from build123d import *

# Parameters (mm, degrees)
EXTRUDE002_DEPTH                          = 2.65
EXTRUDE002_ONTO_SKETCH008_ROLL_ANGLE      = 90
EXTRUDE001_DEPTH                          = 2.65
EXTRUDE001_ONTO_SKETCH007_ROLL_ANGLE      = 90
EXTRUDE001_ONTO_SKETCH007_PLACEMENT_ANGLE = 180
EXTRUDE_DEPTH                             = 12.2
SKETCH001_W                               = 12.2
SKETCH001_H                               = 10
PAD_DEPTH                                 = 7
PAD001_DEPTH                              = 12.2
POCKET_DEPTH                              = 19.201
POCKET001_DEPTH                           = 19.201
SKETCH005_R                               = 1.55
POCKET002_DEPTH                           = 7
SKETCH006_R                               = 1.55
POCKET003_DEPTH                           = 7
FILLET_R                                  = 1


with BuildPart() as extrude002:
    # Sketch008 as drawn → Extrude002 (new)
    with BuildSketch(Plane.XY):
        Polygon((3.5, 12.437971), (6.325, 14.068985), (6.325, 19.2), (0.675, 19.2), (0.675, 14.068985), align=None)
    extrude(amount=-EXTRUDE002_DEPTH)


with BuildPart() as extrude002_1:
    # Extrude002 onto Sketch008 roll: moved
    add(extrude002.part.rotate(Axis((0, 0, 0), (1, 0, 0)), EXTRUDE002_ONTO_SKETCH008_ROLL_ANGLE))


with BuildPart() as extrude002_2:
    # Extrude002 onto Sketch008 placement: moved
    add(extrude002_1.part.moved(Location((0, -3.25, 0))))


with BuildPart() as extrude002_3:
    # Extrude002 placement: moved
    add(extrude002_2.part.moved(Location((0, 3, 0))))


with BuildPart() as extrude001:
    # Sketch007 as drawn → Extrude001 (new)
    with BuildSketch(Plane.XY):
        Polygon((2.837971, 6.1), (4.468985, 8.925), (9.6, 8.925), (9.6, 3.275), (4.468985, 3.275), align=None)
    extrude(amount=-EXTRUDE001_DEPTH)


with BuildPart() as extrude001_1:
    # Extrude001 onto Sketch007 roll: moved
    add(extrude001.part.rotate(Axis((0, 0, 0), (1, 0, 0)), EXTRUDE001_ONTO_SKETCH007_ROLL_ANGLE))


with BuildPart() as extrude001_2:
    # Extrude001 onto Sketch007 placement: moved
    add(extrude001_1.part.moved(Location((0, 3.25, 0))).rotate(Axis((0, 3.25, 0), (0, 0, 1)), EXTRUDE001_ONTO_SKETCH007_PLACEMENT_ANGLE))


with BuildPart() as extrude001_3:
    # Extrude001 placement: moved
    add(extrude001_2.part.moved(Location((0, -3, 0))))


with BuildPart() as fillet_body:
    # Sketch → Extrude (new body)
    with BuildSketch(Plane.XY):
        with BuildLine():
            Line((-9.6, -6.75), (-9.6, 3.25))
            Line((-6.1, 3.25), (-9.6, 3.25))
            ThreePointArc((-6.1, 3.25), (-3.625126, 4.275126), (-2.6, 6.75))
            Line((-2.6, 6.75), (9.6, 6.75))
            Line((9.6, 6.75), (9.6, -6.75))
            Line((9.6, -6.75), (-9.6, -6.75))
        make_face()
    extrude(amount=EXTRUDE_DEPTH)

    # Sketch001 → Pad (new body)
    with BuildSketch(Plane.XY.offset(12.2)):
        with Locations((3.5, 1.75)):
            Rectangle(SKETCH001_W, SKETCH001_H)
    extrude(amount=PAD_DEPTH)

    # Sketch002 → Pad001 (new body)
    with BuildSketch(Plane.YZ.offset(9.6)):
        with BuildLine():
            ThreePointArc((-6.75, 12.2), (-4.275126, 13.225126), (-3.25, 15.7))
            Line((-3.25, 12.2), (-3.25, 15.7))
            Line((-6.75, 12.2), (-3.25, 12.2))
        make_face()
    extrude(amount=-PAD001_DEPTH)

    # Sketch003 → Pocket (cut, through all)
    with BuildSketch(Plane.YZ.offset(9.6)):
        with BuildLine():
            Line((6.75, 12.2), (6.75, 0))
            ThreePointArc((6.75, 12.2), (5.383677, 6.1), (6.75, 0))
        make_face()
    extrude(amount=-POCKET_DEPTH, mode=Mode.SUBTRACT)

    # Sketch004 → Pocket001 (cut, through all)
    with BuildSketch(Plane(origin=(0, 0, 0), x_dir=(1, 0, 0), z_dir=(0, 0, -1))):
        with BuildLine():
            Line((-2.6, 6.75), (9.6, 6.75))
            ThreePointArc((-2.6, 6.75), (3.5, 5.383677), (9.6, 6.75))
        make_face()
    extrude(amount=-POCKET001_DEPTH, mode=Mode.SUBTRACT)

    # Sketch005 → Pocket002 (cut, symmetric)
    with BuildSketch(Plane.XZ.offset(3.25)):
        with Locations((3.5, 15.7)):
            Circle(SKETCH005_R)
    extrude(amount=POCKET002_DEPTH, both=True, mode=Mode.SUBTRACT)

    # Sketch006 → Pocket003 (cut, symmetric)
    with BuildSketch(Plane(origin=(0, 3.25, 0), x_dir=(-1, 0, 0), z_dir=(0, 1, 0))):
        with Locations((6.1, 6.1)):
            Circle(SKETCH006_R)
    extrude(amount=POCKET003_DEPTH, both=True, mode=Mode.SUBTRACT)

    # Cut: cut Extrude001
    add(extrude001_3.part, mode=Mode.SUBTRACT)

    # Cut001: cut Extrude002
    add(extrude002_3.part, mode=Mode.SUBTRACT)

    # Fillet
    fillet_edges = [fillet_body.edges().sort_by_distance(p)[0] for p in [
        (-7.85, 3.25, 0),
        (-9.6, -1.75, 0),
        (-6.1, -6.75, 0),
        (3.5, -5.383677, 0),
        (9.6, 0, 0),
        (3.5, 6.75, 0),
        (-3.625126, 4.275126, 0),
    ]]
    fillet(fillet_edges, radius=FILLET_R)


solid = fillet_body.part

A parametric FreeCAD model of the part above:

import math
import FreeCAD as App
import Part
import Sketcher
Q = App.Units.Quantity


def edges_at(feature, points):
    """Names of the edges that pass closest to the given points."""
    edges = feature.Shape.Edges
    near = lambda p: min(range(len(edges)), key=lambda i: edges[i].distToShape(Part.Vertex(*p))[0])
    return sorted({f"Edge{near(p) + 1}" for p in points})

doc = App.newDocument("Part")
body = doc.addObject("PartDesign::Body", "Body")

# Sketch on XY plane
sketch1 = doc.addObject("Sketcher::SketchObject", "Sketch")
body.addObject(sketch1)
sketch1.AttachmentSupport = (doc.XY_Plane, [""])
sketch1.MapMode = "FlatFace"
sketch1.addGeometry(Part.LineSegment(App.Vector(3.5, 12.4, 0), App.Vector(6.3, 14.1, 0)), False)
sketch1.addGeometry(Part.LineSegment(App.Vector(6.3, 14.1, 0), App.Vector(6.3, 19.2, 0)), False)
sketch1.addGeometry(Part.LineSegment(App.Vector(6.3, 19.2, 0), App.Vector(0.7, 19.2, 0)), False)
sketch1.addGeometry(Part.LineSegment(App.Vector(0.7, 19.2, 0), App.Vector(0.7, 14.1, 0)), False)
sketch1.addGeometry(Part.LineSegment(App.Vector(0.7, 14.1, 0), App.Vector(3.5, 12.4, 0)), False)
sketch1.addConstraint(Sketcher.Constraint("Coincident", 0, 2, 1, 1))
sketch1.addConstraint(Sketcher.Constraint("Coincident", 1, 2, 2, 1))
sketch1.addConstraint(Sketcher.Constraint("Coincident", 2, 2, 3, 1))
sketch1.addConstraint(Sketcher.Constraint("Coincident", 3, 2, 4, 1))
sketch1.addConstraint(Sketcher.Constraint("Coincident", 4, 2, 0, 1))
sketch1.addConstraint(Sketcher.Constraint("Vertical", 1))
sketch1.addConstraint(Sketcher.Constraint("Horizontal", 2))
sketch1.addConstraint(Sketcher.Constraint("Vertical", 3))
sketch1.addConstraint(Sketcher.Constraint("Horizontal", 0, 2, 3, 2))
sketch1.addConstraint(Sketcher.Constraint("Equal", 0, 4))
sketch1.addConstraint(Sketcher.Constraint("Angle", 0, Q("29.999992 deg")))
sketch1.addConstraint(Sketcher.Constraint("DistanceX", 2, 2, 2, 1, Q("5.65 mm")))
sketch1.addConstraint(Sketcher.Constraint("DistanceY", -1, 1, 1, 2, Q("19.2 mm")))
sketch1.addConstraint(Sketcher.Constraint("DistanceX", -1, 1, 4, 2, Q("3.5 mm")))
sketch1.addConstraint(Sketcher.Constraint("DistanceY", 1, 1, 1, 2, Q("5.131015 mm")))
pad1 = doc.addObject("PartDesign::Pad", "Pad")
body.addObject(pad1)
pad1.Profile = sketch1
pad1.Length = 2.65
pad1.Reversed = True
body2 = doc.addObject("PartDesign::Body", "Body001")
doc.recompute()

body.Placement = App.Placement(App.Vector(0, 0, 0), App.Rotation(App.Vector(1, 0, 0), 90))
boolean = doc.addObject("PartDesign::Boolean", "Boolean")
body2.addObject(boolean)
boolean.Type = "Fuse"
boolean.addObjects([body])
body3 = doc.addObject("PartDesign::Body", "Body002")
doc.recompute()

body2.Placement = App.Placement(App.Vector(0, -3.25, 0), App.Rotation(App.Vector(0, 0, 1), 0))
boolean2 = doc.addObject("PartDesign::Boolean", "Boolean001")
body3.addObject(boolean2)
boolean2.Type = "Fuse"
boolean2.addObjects([body2])
body4 = doc.addObject("PartDesign::Body", "Body003")
doc.recompute()

body3.Placement = App.Placement(App.Vector(0, 3, 0), App.Rotation(App.Vector(0, 0, 1), 0))
boolean3 = doc.addObject("PartDesign::Boolean", "Boolean002")
body4.addObject(boolean3)
boolean3.Type = "Fuse"
boolean3.addObjects([body3])
body5 = doc.addObject("PartDesign::Body", "Body004")

# Sketch on XY plane
sketch2 = doc.addObject("Sketcher::SketchObject", "Sketch001")
body5.addObject(sketch2)
sketch2.AttachmentSupport = (doc.getObject("XY_Plane004"), [""])
sketch2.MapMode = "FlatFace"
sketch2.addGeometry(Part.LineSegment(App.Vector(4.5, 8.9, 0), App.Vector(2.8, 6.1, 0)), False)
sketch2.addGeometry(Part.LineSegment(App.Vector(2.8, 6.1, 0), App.Vector(4.5, 3.3, 0)), False)
sketch2.addGeometry(Part.LineSegment(App.Vector(4.5, 3.3, 0), App.Vector(9.6, 3.3, 0)), False)
sketch2.addGeometry(Part.LineSegment(App.Vector(9.6, 3.3, 0), App.Vector(9.6, 8.9, 0)), False)
sketch2.addGeometry(Part.LineSegment(App.Vector(9.6, 8.9, 0), App.Vector(4.5, 8.9, 0)), False)
sketch2.addConstraint(Sketcher.Constraint("Coincident", 0, 2, 1, 1))
sketch2.addConstraint(Sketcher.Constraint("Coincident", 1, 2, 2, 1))
sketch2.addConstraint(Sketcher.Constraint("Coincident", 2, 2, 3, 1))
sketch2.addConstraint(Sketcher.Constraint("Coincident", 3, 2, 4, 1))
sketch2.addConstraint(Sketcher.Constraint("Coincident", 4, 2, 0, 1))
sketch2.addConstraint(Sketcher.Constraint("Horizontal", 2))
sketch2.addConstraint(Sketcher.Constraint("Vertical", 3))
sketch2.addConstraint(Sketcher.Constraint("Horizontal", 4))
sketch2.addConstraint(Sketcher.Constraint("Vertical", 1, 2, 4, 2))
sketch2.addConstraint(Sketcher.Constraint("Equal", 0, 1))
sketch2.addConstraint(Sketcher.Constraint("Angle", 0, Q("-119.999992 deg")))
sketch2.addConstraint(Sketcher.Constraint("DistanceY", 3, 1, 3, 2, Q("5.65 mm")))
sketch2.addConstraint(Sketcher.Constraint("DistanceY", -1, 1, 0, 2, Q("6.1 mm")))
sketch2.addConstraint(Sketcher.Constraint("DistanceX", -1, 1, 2, 2, Q("9.6 mm")))
sketch2.addConstraint(Sketcher.Constraint("DistanceX", 2, 1, 2, 2, Q("5.131015 mm")))
pad2 = doc.addObject("PartDesign::Pad", "Pad001")
body5.addObject(pad2)
pad2.Profile = sketch2
pad2.Length = 2.65
pad2.Reversed = True
body6 = doc.addObject("PartDesign::Body", "Body005")
doc.recompute()

body5.Placement = App.Placement(App.Vector(0, 0, 0), App.Rotation(App.Vector(1, 0, 0), 90))
boolean4 = doc.addObject("PartDesign::Boolean", "Boolean003")
body6.addObject(boolean4)
boolean4.Type = "Fuse"
boolean4.addObjects([body5])
body7 = doc.addObject("PartDesign::Body", "Body006")
doc.recompute()

body6.Placement = App.Placement(App.Vector(0, 3.25, 0), App.Rotation(App.Vector(0, 0, 1), 180))
boolean5 = doc.addObject("PartDesign::Boolean", "Boolean004")
body7.addObject(boolean5)
boolean5.Type = "Fuse"
boolean5.addObjects([body6])
body8 = doc.addObject("PartDesign::Body", "Body007")
doc.recompute()

body7.Placement = App.Placement(App.Vector(0, -3, 0), App.Rotation(App.Vector(0, 0, 1), 0))
boolean6 = doc.addObject("PartDesign::Boolean", "Boolean005")
body8.addObject(boolean6)
boolean6.Type = "Fuse"
boolean6.addObjects([body7])
body9 = doc.addObject("PartDesign::Body", "Body008")

# Sketch on XY plane
sketch3 = doc.addObject("Sketcher::SketchObject", "Sketch002")
body9.addObject(sketch3)
sketch3.AttachmentSupport = (doc.getObject("XY_Plane008"), [""])
sketch3.MapMode = "FlatFace"
sketch3.addGeometry(Part.LineSegment(App.Vector(-9.6, 3.2, 0), App.Vector(-9.6, -6.8, 0)), False)
sketch3.addGeometry(Part.LineSegment(App.Vector(-9.6, -6.8, 0), App.Vector(9.6, -6.8, 0)), False)
sketch3.addGeometry(Part.LineSegment(App.Vector(9.6, -6.8, 0), App.Vector(9.6, 6.8, 0)), False)
sketch3.addGeometry(Part.LineSegment(App.Vector(9.6, 6.8, 0), App.Vector(-2.6, 6.8, 0)), False)
sketch3.addGeometry(Part.ArcOfCircle(Part.Circle(App.Vector(-6.1, 6.7, 0), App.Vector(0, 0, 1), 3.5), math.radians(-90), math.radians(0)), False)
sketch3.addGeometry(Part.LineSegment(App.Vector(-6.1, 3.2, 0), App.Vector(-9.6, 3.2, 0)), False)
sketch3.addConstraint(Sketcher.Constraint("Coincident", 0, 2, 1, 1))
sketch3.addConstraint(Sketcher.Constraint("Coincident", 1, 2, 2, 1))
sketch3.addConstraint(Sketcher.Constraint("Coincident", 2, 2, 3, 1))
sketch3.addConstraint(Sketcher.Constraint("Coincident", 3, 2, 4, 2))
sketch3.addConstraint(Sketcher.Constraint("Tangent", 4, 1, 5, 1))
sketch3.addConstraint(Sketcher.Constraint("Coincident", 5, 2, 0, 1))
sketch3.addConstraint(Sketcher.Constraint("Vertical", 0))
sketch3.addConstraint(Sketcher.Constraint("Horizontal", 1))
sketch3.addConstraint(Sketcher.Constraint("Vertical", 2))
sketch3.addConstraint(Sketcher.Constraint("Horizontal", 3))
sketch3.addConstraint(Sketcher.Constraint("Horizontal", 5))
sketch3.addConstraint(Sketcher.Constraint("Symmetric", 0, 2, 2, 2, -1, 1))
sketch3.addConstraint(Sketcher.Constraint("Horizontal", 4, 3, 2, 2))
sketch3.addConstraint(Sketcher.Constraint("Radius", 4, Q("3.499999 mm")))
sketch3.addConstraint(Sketcher.Constraint("DistanceY", 0, 2, 0, 1, Q("10 mm")))
sketch3.addConstraint(Sketcher.Constraint("DistanceX", 1, 1, 1, 2, Q("19.2 mm")))
sketch3.addConstraint(Sketcher.Constraint("DistanceX", 3, 2, 3, 1, Q("12.2 mm")))
pad3 = doc.addObject("PartDesign::Pad", "Pad002")
body9.addObject(pad3)
pad3.Profile = sketch3
pad3.Length = 12.2

# Sketch on XY plane
sketch4 = doc.addObject("Sketcher::SketchObject", "Sketch003")
body9.addObject(sketch4)
sketch4.AttachmentSupport = (doc.getObject("XY_Plane008"), [""])
sketch4.MapMode = "FlatFace"
sketch4.AttachmentOffset = App.Placement(App.Vector(0, 0, 12.2), App.Rotation())
sketch4.addGeometry(Part.LineSegment(App.Vector(-3, 7, 0), App.Vector(-3, -3, 0)), False)
sketch4.addGeometry(Part.LineSegment(App.Vector(-3, -3, 0), App.Vector(10, -3, 0)), False)
sketch4.addGeometry(Part.LineSegment(App.Vector(10, -3, 0), App.Vector(10, 7, 0)), False)
sketch4.addGeometry(Part.LineSegment(App.Vector(10, 7, 0), App.Vector(-3, 7, 0)), False)
sketch4.addConstraint(Sketcher.Constraint("Coincident", 0, 2, 1, 1))
sketch4.addConstraint(Sketcher.Constraint("Coincident", 1, 2, 2, 1))
sketch4.addConstraint(Sketcher.Constraint("Coincident", 2, 2, 3, 1))
sketch4.addConstraint(Sketcher.Constraint("Coincident", 3, 2, 0, 1))
sketch4.addConstraint(Sketcher.Constraint("Vertical", 0))
sketch4.addConstraint(Sketcher.Constraint("Horizontal", 1))
sketch4.addConstraint(Sketcher.Constraint("Vertical", 2))
sketch4.addConstraint(Sketcher.Constraint("Horizontal", 3))
sketch4.addConstraint(Sketcher.Constraint("DistanceY", 0, 2, 0, 1, Q("10 mm")))
sketch4.addConstraint(Sketcher.Constraint("DistanceX", 1, 1, 1, 2, Q("12.2 mm")))
sketch4.addConstraint(Sketcher.Constraint("DistanceX", 0, 2, -1, 1, Q("2.6 mm")))
sketch4.addConstraint(Sketcher.Constraint("DistanceY", 0, 2, -1, 1, Q("3.25 mm")))
pad4 = doc.addObject("PartDesign::Pad", "Pad003")
body9.addObject(pad4)
pad4.Profile = sketch4
pad4.Length = 7

# Sketch on YZ plane
sketch5 = doc.addObject("Sketcher::SketchObject", "Sketch004")
body9.addObject(sketch5)
sketch5.AttachmentSupport = (doc.getObject("YZ_Plane008"), [""])
sketch5.MapMode = "FlatFace"
sketch5.AttachmentOffset = App.Placement(App.Vector(0, 0, 9.6), App.Rotation())
sketch5.addGeometry(Part.ArcOfCircle(Part.Circle(App.Vector(-6.7, 15.7, 0), App.Vector(0, 0, 1), 3.5), math.radians(-90), math.radians(0)), False)
sketch5.addGeometry(Part.LineSegment(App.Vector(-6.8, 12.2, 0), App.Vector(-3.2, 12.2, 0)), False)
sketch5.addGeometry(Part.LineSegment(App.Vector(-3.2, 12.2, 0), App.Vector(-3.2, 15.7, 0)), False)
sketch5.addConstraint(Sketcher.Constraint("Tangent", 0, 1, 1, 1))
sketch5.addConstraint(Sketcher.Constraint("Coincident", 1, 2, 2, 1))
sketch5.addConstraint(Sketcher.Constraint("Tangent", 2, 2, 0, 2))
sketch5.addConstraint(Sketcher.Constraint("Horizontal", 1))
sketch5.addConstraint(Sketcher.Constraint("Vertical", 2))
sketch5.addConstraint(Sketcher.Constraint("Radius", 0, Q("3.499999 mm")))
sketch5.addConstraint(Sketcher.Constraint("DistanceY", -1, 1, 0, 3, Q("15.699999 mm")))
sketch5.addConstraint(Sketcher.Constraint("DistanceX", 0, 3, -1, 1, Q("6.749999 mm")))
pad5 = doc.addObject("PartDesign::Pad", "Pad004")
body9.addObject(pad5)
pad5.Profile = sketch5
pad5.Length = 12.2
pad5.Reversed = True

# Sketch on YZ plane
sketch6 = doc.addObject("Sketcher::SketchObject", "Sketch005")
body9.addObject(sketch6)
sketch6.AttachmentSupport = (doc.getObject("YZ_Plane008"), [""])
sketch6.MapMode = "FlatFace"
sketch6.AttachmentOffset = App.Placement(App.Vector(0, 0, 9.6), App.Rotation())
sketch6.addGeometry(Part.LineSegment(App.Vector(7, 0, 0), App.Vector(7, 12, 0)), False)
sketch6.addGeometry(Part.ArcOfCircle(Part.Circle(App.Vector(20, 6, 0), App.Vector(0, 0, 1), 14), math.radians(155), math.radians(205)), False)
sketch6.addConstraint(Sketcher.Constraint("Coincident", 0, 1, 1, 2))
sketch6.addConstraint(Sketcher.Constraint("Coincident", 1, 1, 0, 2))
sketch6.addConstraint(Sketcher.Constraint("Vertical", 0))
sketch6.addConstraint(Sketcher.Constraint("PointOnObject", 0, 1, -1))
sketch6.addConstraint(Sketcher.Constraint("Radius", 1, Q("14.3 mm")))
sketch6.addConstraint(Sketcher.Constraint("DistanceY", 0, 1, 0, 2, Q("12.2 mm")))
sketch6.addConstraint(Sketcher.Constraint("DistanceX", -1, 1, 0, 1, Q("6.75 mm")))
pocket1 = doc.addObject("PartDesign::Pocket", "Pocket")
body9.addObject(pocket1)
pocket1.Profile = sketch6
pocket1.Type = "ThroughAll"

# Sketch on XY plane
sketch7 = doc.addObject("Sketcher::SketchObject", "Sketch006")
body9.addObject(sketch7)
sketch7.AttachmentSupport = (doc.getObject("XY_Plane008"), [""])
sketch7.MapMode = "FlatFace"
sketch7.addGeometry(Part.LineSegment(App.Vector(10, -7, 0), App.Vector(-3, -7, 0)), False)
sketch7.addGeometry(Part.ArcOfCircle(Part.Circle(App.Vector(4, -20, 0), App.Vector(0, 0, 1), 14), math.radians(65), math.radians(115)), False)
sketch7.addConstraint(Sketcher.Constraint("Coincident", 0, 1, 1, 1))
sketch7.addConstraint(Sketcher.Constraint("Coincident", 1, 2, 0, 2))
sketch7.addConstraint(Sketcher.Constraint("Horizontal", 0))
sketch7.addConstraint(Sketcher.Constraint("Radius", 1, Q("14.3 mm")))
sketch7.addConstraint(Sketcher.Constraint("DistanceX", 0, 2, 0, 1, Q("12.2 mm")))
sketch7.addConstraint(Sketcher.Constraint("DistanceX", -1, 1, 1, 3, Q("3.5 mm")))
sketch7.addConstraint(Sketcher.Constraint("DistanceY", 0, 1, -1, 1, Q("6.75 mm")))
pocket2 = doc.addObject("PartDesign::Pocket", "Pocket001")
body9.addObject(pocket2)
pocket2.Profile = sketch7
pocket2.Length = 19.201
pocket2.Reversed = True

# Sketch on XZ plane
sketch8 = doc.addObject("Sketcher::SketchObject", "Sketch007")
body9.addObject(sketch8)
sketch8.AttachmentSupport = (doc.getObject("XZ_Plane008"), [""])
sketch8.MapMode = "FlatFace"
sketch8.AttachmentOffset = App.Placement(App.Vector(0, 0, 3.25), App.Rotation())
sketch8.addGeometry(Part.Circle(App.Vector(3.5, 15.7, 0), App.Vector(0, 0, 1), 1.6), False)
sketch8.addConstraint(Sketcher.Constraint("Diameter", 0, Q("3.1 mm")))
sketch8.addConstraint(Sketcher.Constraint("DistanceX", -1, 1, 0, 3, Q("3.5 mm")))
sketch8.addConstraint(Sketcher.Constraint("DistanceY", -1, 1, 0, 3, Q("15.7 mm")))
pocket3 = doc.addObject("PartDesign::Pocket", "Pocket002")
body9.addObject(pocket3)
pocket3.Profile = sketch8
pocket3.Length = 14
pocket3.Midplane = True

# Sketch on XZ plane
sketch9 = doc.addObject("Sketcher::SketchObject", "Sketch008")
body9.addObject(sketch9)
sketch9.AttachmentSupport = (doc.getObject("XZ_Plane008"), [""])
sketch9.MapMode = "FlatFace"
sketch9.AttachmentOffset = App.Placement(App.Vector(0, 0, -3.25), App.Rotation())
sketch9.addGeometry(Part.Circle(App.Vector(-6.1, 6.1, 0), App.Vector(0, 0, 1), 1.6), False)
sketch9.addConstraint(Sketcher.Constraint("Diameter", 0, Q("3.1 mm")))
sketch9.addConstraint(Sketcher.Constraint("DistanceX", 0, 3, -1, 1, Q("6.1 mm")))
sketch9.addConstraint(Sketcher.Constraint("DistanceY", -1, 1, 0, 3, Q("6.1 mm")))
pocket4 = doc.addObject("PartDesign::Pocket", "Pocket003")
body9.addObject(pocket4)
pocket4.Profile = sketch9
pocket4.Length = 14
pocket4.Midplane = True
doc.recompute()

boolean7 = doc.addObject("PartDesign::Boolean", "Boolean006")
body9.addObject(boolean7)
boolean7.Type = "Cut"
boolean7.addObjects([body8])
doc.recompute()

boolean8 = doc.addObject("PartDesign::Boolean", "Boolean007")
body9.addObject(boolean8)
boolean8.Type = "Cut"
boolean8.addObjects([body4])
doc.recompute()

fillet = doc.addObject("PartDesign::Fillet", "Fillet")
body9.addObject(fillet)
fillet.Base = (boolean8, edges_at(boolean8, [
    (-7.85, 3.25, 0),
    (-9.6, -1.75, 0),
    (-6.1, -6.75, 0),
    (3.5, -5.384, 0),
    (9.6, 0, 0),
    (3.5, 6.75, 0),
    (-3.625, 4.275, 0),
]))
fillet.Radius = 1

doc.recompute()
